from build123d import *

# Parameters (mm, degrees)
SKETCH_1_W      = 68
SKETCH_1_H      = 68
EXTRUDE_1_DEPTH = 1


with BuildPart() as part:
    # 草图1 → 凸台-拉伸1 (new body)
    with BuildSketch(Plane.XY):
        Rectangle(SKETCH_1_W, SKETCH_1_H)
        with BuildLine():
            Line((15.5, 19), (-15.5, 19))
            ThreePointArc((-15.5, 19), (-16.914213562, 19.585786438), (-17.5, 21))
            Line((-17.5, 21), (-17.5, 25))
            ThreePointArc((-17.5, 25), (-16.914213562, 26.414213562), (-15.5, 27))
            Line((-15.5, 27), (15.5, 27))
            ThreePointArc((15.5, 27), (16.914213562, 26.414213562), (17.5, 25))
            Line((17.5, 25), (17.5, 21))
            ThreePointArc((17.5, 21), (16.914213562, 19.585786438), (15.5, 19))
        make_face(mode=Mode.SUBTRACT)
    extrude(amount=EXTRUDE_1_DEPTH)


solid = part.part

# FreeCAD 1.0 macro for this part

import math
import FreeCAD as App
import Part
import Sketcher

V = App.Vector
Q = App.Units.Quantity

doc = App.newDocument("Part")
body = doc.addObject("PartDesign::Body", "Body")

# Sketch on XY plane
sketch1 = body.newObject("Sketcher::SketchObject", "Sketch")
sketch1.AttachmentSupport = (doc.getObject("XY_Plane"), [""])
sketch1.MapMode = "FlatFace"
sketch1.addGeometry([
    Part.LineSegment(V(-34, 34, 0), V(-34, -34, 0)),  # 0
    Part.LineSegment(V(-34, -34, 0), V(34, -34, 0)),  # 1
    Part.LineSegment(V(34, -34, 0), V(34, 34, 0)),  # 2
    Part.LineSegment(V(34, 34, 0), V(-34, 34, 0)),  # 3
    Part.ArcOfCircle(Part.Circle(V(15.5, 21, 0), V(0, 0, 1), 2), math.radians(-90), math.radians(0)),  # 4
    Part.LineSegment(V(15.5, 19, 0), V(-15.5, 19, 0)),  # 5
    Part.ArcOfCircle(Part.Circle(V(-15.5, 21, 0), V(0, 0, 1), 2), math.radians(-180), math.radians(-90)),  # 6
    Part.LineSegment(V(-17.5, 21, 0), V(-17.5, 25, 0)),  # 7
    Part.ArcOfCircle(Part.Circle(V(-15.5, 25, 0), V(0, 0, 1), 2), math.radians(90), math.radians(180)),  # 8
    Part.LineSegment(V(-15.5, 27, 0), V(15.5, 27, 0)),  # 9
    Part.ArcOfCircle(Part.Circle(V(15.5, 25, 0), V(0, 0, 1), 2), math.radians(0), math.radians(90)),  # 10
    Part.LineSegment(V(17.5, 25, 0), V(17.5, 21, 0)),  # 11
], False)
sketch1.addConstraint([
    Sketcher.Constraint("Coincident", 0, 2, 1, 1),
    Sketcher.Constraint("Coincident", 1, 2, 2, 1),
    Sketcher.Constraint("Coincident", 2, 2, 3, 1),
    Sketcher.Constraint("Coincident", 3, 2, 0, 1),
    Sketcher.Constraint("Tangent", 4, 1, 5, 1),
    Sketcher.Constraint("Tangent", 5, 2, 6, 2),
    Sketcher.Constraint("Tangent", 6, 1, 7, 1),
    Sketcher.Constraint("Tangent", 7, 2, 8, 2),
    Sketcher.Constraint("Tangent", 8, 1, 9, 1),
    Sketcher.Constraint("Tangent", 9, 2, 10, 2),
    Sketcher.Constraint("Tangent", 10, 1, 11, 1),
    Sketcher.Constraint("Tangent", 11, 2, 4, 2),
    Sketcher.Constraint("Vertical", 0),
    Sketcher.Constraint("Horizontal", 1),
    Sketcher.Constraint("Vertical", 2),
    Sketcher.Constraint("Horizontal", 3),
    Sketcher.Constraint("Horizontal", 5),
    Sketcher.Constraint("Vertical", 7),
    Sketcher.Constraint("Horizontal", 9),
    Sketcher.Constraint("Vertical", 11),
    Sketcher.Constraint("Equal", 4, 6),
    Sketcher.Constraint("Equal", 6, 8),
    Sketcher.Constraint("Equal", 8, 10),
    Sketcher.Constraint("Symmetric", 0, 2, 2, 2, -1, 1),
    Sketcher.Constraint("Equal", 3, 0),
    Sketcher.Constraint("Radius", 4, Q("2 mm")),
    Sketcher.Constraint("DistanceX", 1, 1, 1, 2, Q("68 mm")),
    Sketcher.Constraint("DistanceX", 5, 2, 5, 1, Q("31 mm")),
    Sketcher.Constraint("DistanceY", 7, 1, 7, 2, Q("4 mm")),
    Sketcher.Constraint("DistanceY", -1, 1, 4, 3, Q("21 mm")),
    Sketcher.Constraint("DistanceX", -1, 1, 4, 3, Q("15.5 mm")),
])
pad1 = body.newObject("PartDesign::Pad", "Pad")
pad1.Profile = sketch1
pad1.Length = 1

doc.recompute()
